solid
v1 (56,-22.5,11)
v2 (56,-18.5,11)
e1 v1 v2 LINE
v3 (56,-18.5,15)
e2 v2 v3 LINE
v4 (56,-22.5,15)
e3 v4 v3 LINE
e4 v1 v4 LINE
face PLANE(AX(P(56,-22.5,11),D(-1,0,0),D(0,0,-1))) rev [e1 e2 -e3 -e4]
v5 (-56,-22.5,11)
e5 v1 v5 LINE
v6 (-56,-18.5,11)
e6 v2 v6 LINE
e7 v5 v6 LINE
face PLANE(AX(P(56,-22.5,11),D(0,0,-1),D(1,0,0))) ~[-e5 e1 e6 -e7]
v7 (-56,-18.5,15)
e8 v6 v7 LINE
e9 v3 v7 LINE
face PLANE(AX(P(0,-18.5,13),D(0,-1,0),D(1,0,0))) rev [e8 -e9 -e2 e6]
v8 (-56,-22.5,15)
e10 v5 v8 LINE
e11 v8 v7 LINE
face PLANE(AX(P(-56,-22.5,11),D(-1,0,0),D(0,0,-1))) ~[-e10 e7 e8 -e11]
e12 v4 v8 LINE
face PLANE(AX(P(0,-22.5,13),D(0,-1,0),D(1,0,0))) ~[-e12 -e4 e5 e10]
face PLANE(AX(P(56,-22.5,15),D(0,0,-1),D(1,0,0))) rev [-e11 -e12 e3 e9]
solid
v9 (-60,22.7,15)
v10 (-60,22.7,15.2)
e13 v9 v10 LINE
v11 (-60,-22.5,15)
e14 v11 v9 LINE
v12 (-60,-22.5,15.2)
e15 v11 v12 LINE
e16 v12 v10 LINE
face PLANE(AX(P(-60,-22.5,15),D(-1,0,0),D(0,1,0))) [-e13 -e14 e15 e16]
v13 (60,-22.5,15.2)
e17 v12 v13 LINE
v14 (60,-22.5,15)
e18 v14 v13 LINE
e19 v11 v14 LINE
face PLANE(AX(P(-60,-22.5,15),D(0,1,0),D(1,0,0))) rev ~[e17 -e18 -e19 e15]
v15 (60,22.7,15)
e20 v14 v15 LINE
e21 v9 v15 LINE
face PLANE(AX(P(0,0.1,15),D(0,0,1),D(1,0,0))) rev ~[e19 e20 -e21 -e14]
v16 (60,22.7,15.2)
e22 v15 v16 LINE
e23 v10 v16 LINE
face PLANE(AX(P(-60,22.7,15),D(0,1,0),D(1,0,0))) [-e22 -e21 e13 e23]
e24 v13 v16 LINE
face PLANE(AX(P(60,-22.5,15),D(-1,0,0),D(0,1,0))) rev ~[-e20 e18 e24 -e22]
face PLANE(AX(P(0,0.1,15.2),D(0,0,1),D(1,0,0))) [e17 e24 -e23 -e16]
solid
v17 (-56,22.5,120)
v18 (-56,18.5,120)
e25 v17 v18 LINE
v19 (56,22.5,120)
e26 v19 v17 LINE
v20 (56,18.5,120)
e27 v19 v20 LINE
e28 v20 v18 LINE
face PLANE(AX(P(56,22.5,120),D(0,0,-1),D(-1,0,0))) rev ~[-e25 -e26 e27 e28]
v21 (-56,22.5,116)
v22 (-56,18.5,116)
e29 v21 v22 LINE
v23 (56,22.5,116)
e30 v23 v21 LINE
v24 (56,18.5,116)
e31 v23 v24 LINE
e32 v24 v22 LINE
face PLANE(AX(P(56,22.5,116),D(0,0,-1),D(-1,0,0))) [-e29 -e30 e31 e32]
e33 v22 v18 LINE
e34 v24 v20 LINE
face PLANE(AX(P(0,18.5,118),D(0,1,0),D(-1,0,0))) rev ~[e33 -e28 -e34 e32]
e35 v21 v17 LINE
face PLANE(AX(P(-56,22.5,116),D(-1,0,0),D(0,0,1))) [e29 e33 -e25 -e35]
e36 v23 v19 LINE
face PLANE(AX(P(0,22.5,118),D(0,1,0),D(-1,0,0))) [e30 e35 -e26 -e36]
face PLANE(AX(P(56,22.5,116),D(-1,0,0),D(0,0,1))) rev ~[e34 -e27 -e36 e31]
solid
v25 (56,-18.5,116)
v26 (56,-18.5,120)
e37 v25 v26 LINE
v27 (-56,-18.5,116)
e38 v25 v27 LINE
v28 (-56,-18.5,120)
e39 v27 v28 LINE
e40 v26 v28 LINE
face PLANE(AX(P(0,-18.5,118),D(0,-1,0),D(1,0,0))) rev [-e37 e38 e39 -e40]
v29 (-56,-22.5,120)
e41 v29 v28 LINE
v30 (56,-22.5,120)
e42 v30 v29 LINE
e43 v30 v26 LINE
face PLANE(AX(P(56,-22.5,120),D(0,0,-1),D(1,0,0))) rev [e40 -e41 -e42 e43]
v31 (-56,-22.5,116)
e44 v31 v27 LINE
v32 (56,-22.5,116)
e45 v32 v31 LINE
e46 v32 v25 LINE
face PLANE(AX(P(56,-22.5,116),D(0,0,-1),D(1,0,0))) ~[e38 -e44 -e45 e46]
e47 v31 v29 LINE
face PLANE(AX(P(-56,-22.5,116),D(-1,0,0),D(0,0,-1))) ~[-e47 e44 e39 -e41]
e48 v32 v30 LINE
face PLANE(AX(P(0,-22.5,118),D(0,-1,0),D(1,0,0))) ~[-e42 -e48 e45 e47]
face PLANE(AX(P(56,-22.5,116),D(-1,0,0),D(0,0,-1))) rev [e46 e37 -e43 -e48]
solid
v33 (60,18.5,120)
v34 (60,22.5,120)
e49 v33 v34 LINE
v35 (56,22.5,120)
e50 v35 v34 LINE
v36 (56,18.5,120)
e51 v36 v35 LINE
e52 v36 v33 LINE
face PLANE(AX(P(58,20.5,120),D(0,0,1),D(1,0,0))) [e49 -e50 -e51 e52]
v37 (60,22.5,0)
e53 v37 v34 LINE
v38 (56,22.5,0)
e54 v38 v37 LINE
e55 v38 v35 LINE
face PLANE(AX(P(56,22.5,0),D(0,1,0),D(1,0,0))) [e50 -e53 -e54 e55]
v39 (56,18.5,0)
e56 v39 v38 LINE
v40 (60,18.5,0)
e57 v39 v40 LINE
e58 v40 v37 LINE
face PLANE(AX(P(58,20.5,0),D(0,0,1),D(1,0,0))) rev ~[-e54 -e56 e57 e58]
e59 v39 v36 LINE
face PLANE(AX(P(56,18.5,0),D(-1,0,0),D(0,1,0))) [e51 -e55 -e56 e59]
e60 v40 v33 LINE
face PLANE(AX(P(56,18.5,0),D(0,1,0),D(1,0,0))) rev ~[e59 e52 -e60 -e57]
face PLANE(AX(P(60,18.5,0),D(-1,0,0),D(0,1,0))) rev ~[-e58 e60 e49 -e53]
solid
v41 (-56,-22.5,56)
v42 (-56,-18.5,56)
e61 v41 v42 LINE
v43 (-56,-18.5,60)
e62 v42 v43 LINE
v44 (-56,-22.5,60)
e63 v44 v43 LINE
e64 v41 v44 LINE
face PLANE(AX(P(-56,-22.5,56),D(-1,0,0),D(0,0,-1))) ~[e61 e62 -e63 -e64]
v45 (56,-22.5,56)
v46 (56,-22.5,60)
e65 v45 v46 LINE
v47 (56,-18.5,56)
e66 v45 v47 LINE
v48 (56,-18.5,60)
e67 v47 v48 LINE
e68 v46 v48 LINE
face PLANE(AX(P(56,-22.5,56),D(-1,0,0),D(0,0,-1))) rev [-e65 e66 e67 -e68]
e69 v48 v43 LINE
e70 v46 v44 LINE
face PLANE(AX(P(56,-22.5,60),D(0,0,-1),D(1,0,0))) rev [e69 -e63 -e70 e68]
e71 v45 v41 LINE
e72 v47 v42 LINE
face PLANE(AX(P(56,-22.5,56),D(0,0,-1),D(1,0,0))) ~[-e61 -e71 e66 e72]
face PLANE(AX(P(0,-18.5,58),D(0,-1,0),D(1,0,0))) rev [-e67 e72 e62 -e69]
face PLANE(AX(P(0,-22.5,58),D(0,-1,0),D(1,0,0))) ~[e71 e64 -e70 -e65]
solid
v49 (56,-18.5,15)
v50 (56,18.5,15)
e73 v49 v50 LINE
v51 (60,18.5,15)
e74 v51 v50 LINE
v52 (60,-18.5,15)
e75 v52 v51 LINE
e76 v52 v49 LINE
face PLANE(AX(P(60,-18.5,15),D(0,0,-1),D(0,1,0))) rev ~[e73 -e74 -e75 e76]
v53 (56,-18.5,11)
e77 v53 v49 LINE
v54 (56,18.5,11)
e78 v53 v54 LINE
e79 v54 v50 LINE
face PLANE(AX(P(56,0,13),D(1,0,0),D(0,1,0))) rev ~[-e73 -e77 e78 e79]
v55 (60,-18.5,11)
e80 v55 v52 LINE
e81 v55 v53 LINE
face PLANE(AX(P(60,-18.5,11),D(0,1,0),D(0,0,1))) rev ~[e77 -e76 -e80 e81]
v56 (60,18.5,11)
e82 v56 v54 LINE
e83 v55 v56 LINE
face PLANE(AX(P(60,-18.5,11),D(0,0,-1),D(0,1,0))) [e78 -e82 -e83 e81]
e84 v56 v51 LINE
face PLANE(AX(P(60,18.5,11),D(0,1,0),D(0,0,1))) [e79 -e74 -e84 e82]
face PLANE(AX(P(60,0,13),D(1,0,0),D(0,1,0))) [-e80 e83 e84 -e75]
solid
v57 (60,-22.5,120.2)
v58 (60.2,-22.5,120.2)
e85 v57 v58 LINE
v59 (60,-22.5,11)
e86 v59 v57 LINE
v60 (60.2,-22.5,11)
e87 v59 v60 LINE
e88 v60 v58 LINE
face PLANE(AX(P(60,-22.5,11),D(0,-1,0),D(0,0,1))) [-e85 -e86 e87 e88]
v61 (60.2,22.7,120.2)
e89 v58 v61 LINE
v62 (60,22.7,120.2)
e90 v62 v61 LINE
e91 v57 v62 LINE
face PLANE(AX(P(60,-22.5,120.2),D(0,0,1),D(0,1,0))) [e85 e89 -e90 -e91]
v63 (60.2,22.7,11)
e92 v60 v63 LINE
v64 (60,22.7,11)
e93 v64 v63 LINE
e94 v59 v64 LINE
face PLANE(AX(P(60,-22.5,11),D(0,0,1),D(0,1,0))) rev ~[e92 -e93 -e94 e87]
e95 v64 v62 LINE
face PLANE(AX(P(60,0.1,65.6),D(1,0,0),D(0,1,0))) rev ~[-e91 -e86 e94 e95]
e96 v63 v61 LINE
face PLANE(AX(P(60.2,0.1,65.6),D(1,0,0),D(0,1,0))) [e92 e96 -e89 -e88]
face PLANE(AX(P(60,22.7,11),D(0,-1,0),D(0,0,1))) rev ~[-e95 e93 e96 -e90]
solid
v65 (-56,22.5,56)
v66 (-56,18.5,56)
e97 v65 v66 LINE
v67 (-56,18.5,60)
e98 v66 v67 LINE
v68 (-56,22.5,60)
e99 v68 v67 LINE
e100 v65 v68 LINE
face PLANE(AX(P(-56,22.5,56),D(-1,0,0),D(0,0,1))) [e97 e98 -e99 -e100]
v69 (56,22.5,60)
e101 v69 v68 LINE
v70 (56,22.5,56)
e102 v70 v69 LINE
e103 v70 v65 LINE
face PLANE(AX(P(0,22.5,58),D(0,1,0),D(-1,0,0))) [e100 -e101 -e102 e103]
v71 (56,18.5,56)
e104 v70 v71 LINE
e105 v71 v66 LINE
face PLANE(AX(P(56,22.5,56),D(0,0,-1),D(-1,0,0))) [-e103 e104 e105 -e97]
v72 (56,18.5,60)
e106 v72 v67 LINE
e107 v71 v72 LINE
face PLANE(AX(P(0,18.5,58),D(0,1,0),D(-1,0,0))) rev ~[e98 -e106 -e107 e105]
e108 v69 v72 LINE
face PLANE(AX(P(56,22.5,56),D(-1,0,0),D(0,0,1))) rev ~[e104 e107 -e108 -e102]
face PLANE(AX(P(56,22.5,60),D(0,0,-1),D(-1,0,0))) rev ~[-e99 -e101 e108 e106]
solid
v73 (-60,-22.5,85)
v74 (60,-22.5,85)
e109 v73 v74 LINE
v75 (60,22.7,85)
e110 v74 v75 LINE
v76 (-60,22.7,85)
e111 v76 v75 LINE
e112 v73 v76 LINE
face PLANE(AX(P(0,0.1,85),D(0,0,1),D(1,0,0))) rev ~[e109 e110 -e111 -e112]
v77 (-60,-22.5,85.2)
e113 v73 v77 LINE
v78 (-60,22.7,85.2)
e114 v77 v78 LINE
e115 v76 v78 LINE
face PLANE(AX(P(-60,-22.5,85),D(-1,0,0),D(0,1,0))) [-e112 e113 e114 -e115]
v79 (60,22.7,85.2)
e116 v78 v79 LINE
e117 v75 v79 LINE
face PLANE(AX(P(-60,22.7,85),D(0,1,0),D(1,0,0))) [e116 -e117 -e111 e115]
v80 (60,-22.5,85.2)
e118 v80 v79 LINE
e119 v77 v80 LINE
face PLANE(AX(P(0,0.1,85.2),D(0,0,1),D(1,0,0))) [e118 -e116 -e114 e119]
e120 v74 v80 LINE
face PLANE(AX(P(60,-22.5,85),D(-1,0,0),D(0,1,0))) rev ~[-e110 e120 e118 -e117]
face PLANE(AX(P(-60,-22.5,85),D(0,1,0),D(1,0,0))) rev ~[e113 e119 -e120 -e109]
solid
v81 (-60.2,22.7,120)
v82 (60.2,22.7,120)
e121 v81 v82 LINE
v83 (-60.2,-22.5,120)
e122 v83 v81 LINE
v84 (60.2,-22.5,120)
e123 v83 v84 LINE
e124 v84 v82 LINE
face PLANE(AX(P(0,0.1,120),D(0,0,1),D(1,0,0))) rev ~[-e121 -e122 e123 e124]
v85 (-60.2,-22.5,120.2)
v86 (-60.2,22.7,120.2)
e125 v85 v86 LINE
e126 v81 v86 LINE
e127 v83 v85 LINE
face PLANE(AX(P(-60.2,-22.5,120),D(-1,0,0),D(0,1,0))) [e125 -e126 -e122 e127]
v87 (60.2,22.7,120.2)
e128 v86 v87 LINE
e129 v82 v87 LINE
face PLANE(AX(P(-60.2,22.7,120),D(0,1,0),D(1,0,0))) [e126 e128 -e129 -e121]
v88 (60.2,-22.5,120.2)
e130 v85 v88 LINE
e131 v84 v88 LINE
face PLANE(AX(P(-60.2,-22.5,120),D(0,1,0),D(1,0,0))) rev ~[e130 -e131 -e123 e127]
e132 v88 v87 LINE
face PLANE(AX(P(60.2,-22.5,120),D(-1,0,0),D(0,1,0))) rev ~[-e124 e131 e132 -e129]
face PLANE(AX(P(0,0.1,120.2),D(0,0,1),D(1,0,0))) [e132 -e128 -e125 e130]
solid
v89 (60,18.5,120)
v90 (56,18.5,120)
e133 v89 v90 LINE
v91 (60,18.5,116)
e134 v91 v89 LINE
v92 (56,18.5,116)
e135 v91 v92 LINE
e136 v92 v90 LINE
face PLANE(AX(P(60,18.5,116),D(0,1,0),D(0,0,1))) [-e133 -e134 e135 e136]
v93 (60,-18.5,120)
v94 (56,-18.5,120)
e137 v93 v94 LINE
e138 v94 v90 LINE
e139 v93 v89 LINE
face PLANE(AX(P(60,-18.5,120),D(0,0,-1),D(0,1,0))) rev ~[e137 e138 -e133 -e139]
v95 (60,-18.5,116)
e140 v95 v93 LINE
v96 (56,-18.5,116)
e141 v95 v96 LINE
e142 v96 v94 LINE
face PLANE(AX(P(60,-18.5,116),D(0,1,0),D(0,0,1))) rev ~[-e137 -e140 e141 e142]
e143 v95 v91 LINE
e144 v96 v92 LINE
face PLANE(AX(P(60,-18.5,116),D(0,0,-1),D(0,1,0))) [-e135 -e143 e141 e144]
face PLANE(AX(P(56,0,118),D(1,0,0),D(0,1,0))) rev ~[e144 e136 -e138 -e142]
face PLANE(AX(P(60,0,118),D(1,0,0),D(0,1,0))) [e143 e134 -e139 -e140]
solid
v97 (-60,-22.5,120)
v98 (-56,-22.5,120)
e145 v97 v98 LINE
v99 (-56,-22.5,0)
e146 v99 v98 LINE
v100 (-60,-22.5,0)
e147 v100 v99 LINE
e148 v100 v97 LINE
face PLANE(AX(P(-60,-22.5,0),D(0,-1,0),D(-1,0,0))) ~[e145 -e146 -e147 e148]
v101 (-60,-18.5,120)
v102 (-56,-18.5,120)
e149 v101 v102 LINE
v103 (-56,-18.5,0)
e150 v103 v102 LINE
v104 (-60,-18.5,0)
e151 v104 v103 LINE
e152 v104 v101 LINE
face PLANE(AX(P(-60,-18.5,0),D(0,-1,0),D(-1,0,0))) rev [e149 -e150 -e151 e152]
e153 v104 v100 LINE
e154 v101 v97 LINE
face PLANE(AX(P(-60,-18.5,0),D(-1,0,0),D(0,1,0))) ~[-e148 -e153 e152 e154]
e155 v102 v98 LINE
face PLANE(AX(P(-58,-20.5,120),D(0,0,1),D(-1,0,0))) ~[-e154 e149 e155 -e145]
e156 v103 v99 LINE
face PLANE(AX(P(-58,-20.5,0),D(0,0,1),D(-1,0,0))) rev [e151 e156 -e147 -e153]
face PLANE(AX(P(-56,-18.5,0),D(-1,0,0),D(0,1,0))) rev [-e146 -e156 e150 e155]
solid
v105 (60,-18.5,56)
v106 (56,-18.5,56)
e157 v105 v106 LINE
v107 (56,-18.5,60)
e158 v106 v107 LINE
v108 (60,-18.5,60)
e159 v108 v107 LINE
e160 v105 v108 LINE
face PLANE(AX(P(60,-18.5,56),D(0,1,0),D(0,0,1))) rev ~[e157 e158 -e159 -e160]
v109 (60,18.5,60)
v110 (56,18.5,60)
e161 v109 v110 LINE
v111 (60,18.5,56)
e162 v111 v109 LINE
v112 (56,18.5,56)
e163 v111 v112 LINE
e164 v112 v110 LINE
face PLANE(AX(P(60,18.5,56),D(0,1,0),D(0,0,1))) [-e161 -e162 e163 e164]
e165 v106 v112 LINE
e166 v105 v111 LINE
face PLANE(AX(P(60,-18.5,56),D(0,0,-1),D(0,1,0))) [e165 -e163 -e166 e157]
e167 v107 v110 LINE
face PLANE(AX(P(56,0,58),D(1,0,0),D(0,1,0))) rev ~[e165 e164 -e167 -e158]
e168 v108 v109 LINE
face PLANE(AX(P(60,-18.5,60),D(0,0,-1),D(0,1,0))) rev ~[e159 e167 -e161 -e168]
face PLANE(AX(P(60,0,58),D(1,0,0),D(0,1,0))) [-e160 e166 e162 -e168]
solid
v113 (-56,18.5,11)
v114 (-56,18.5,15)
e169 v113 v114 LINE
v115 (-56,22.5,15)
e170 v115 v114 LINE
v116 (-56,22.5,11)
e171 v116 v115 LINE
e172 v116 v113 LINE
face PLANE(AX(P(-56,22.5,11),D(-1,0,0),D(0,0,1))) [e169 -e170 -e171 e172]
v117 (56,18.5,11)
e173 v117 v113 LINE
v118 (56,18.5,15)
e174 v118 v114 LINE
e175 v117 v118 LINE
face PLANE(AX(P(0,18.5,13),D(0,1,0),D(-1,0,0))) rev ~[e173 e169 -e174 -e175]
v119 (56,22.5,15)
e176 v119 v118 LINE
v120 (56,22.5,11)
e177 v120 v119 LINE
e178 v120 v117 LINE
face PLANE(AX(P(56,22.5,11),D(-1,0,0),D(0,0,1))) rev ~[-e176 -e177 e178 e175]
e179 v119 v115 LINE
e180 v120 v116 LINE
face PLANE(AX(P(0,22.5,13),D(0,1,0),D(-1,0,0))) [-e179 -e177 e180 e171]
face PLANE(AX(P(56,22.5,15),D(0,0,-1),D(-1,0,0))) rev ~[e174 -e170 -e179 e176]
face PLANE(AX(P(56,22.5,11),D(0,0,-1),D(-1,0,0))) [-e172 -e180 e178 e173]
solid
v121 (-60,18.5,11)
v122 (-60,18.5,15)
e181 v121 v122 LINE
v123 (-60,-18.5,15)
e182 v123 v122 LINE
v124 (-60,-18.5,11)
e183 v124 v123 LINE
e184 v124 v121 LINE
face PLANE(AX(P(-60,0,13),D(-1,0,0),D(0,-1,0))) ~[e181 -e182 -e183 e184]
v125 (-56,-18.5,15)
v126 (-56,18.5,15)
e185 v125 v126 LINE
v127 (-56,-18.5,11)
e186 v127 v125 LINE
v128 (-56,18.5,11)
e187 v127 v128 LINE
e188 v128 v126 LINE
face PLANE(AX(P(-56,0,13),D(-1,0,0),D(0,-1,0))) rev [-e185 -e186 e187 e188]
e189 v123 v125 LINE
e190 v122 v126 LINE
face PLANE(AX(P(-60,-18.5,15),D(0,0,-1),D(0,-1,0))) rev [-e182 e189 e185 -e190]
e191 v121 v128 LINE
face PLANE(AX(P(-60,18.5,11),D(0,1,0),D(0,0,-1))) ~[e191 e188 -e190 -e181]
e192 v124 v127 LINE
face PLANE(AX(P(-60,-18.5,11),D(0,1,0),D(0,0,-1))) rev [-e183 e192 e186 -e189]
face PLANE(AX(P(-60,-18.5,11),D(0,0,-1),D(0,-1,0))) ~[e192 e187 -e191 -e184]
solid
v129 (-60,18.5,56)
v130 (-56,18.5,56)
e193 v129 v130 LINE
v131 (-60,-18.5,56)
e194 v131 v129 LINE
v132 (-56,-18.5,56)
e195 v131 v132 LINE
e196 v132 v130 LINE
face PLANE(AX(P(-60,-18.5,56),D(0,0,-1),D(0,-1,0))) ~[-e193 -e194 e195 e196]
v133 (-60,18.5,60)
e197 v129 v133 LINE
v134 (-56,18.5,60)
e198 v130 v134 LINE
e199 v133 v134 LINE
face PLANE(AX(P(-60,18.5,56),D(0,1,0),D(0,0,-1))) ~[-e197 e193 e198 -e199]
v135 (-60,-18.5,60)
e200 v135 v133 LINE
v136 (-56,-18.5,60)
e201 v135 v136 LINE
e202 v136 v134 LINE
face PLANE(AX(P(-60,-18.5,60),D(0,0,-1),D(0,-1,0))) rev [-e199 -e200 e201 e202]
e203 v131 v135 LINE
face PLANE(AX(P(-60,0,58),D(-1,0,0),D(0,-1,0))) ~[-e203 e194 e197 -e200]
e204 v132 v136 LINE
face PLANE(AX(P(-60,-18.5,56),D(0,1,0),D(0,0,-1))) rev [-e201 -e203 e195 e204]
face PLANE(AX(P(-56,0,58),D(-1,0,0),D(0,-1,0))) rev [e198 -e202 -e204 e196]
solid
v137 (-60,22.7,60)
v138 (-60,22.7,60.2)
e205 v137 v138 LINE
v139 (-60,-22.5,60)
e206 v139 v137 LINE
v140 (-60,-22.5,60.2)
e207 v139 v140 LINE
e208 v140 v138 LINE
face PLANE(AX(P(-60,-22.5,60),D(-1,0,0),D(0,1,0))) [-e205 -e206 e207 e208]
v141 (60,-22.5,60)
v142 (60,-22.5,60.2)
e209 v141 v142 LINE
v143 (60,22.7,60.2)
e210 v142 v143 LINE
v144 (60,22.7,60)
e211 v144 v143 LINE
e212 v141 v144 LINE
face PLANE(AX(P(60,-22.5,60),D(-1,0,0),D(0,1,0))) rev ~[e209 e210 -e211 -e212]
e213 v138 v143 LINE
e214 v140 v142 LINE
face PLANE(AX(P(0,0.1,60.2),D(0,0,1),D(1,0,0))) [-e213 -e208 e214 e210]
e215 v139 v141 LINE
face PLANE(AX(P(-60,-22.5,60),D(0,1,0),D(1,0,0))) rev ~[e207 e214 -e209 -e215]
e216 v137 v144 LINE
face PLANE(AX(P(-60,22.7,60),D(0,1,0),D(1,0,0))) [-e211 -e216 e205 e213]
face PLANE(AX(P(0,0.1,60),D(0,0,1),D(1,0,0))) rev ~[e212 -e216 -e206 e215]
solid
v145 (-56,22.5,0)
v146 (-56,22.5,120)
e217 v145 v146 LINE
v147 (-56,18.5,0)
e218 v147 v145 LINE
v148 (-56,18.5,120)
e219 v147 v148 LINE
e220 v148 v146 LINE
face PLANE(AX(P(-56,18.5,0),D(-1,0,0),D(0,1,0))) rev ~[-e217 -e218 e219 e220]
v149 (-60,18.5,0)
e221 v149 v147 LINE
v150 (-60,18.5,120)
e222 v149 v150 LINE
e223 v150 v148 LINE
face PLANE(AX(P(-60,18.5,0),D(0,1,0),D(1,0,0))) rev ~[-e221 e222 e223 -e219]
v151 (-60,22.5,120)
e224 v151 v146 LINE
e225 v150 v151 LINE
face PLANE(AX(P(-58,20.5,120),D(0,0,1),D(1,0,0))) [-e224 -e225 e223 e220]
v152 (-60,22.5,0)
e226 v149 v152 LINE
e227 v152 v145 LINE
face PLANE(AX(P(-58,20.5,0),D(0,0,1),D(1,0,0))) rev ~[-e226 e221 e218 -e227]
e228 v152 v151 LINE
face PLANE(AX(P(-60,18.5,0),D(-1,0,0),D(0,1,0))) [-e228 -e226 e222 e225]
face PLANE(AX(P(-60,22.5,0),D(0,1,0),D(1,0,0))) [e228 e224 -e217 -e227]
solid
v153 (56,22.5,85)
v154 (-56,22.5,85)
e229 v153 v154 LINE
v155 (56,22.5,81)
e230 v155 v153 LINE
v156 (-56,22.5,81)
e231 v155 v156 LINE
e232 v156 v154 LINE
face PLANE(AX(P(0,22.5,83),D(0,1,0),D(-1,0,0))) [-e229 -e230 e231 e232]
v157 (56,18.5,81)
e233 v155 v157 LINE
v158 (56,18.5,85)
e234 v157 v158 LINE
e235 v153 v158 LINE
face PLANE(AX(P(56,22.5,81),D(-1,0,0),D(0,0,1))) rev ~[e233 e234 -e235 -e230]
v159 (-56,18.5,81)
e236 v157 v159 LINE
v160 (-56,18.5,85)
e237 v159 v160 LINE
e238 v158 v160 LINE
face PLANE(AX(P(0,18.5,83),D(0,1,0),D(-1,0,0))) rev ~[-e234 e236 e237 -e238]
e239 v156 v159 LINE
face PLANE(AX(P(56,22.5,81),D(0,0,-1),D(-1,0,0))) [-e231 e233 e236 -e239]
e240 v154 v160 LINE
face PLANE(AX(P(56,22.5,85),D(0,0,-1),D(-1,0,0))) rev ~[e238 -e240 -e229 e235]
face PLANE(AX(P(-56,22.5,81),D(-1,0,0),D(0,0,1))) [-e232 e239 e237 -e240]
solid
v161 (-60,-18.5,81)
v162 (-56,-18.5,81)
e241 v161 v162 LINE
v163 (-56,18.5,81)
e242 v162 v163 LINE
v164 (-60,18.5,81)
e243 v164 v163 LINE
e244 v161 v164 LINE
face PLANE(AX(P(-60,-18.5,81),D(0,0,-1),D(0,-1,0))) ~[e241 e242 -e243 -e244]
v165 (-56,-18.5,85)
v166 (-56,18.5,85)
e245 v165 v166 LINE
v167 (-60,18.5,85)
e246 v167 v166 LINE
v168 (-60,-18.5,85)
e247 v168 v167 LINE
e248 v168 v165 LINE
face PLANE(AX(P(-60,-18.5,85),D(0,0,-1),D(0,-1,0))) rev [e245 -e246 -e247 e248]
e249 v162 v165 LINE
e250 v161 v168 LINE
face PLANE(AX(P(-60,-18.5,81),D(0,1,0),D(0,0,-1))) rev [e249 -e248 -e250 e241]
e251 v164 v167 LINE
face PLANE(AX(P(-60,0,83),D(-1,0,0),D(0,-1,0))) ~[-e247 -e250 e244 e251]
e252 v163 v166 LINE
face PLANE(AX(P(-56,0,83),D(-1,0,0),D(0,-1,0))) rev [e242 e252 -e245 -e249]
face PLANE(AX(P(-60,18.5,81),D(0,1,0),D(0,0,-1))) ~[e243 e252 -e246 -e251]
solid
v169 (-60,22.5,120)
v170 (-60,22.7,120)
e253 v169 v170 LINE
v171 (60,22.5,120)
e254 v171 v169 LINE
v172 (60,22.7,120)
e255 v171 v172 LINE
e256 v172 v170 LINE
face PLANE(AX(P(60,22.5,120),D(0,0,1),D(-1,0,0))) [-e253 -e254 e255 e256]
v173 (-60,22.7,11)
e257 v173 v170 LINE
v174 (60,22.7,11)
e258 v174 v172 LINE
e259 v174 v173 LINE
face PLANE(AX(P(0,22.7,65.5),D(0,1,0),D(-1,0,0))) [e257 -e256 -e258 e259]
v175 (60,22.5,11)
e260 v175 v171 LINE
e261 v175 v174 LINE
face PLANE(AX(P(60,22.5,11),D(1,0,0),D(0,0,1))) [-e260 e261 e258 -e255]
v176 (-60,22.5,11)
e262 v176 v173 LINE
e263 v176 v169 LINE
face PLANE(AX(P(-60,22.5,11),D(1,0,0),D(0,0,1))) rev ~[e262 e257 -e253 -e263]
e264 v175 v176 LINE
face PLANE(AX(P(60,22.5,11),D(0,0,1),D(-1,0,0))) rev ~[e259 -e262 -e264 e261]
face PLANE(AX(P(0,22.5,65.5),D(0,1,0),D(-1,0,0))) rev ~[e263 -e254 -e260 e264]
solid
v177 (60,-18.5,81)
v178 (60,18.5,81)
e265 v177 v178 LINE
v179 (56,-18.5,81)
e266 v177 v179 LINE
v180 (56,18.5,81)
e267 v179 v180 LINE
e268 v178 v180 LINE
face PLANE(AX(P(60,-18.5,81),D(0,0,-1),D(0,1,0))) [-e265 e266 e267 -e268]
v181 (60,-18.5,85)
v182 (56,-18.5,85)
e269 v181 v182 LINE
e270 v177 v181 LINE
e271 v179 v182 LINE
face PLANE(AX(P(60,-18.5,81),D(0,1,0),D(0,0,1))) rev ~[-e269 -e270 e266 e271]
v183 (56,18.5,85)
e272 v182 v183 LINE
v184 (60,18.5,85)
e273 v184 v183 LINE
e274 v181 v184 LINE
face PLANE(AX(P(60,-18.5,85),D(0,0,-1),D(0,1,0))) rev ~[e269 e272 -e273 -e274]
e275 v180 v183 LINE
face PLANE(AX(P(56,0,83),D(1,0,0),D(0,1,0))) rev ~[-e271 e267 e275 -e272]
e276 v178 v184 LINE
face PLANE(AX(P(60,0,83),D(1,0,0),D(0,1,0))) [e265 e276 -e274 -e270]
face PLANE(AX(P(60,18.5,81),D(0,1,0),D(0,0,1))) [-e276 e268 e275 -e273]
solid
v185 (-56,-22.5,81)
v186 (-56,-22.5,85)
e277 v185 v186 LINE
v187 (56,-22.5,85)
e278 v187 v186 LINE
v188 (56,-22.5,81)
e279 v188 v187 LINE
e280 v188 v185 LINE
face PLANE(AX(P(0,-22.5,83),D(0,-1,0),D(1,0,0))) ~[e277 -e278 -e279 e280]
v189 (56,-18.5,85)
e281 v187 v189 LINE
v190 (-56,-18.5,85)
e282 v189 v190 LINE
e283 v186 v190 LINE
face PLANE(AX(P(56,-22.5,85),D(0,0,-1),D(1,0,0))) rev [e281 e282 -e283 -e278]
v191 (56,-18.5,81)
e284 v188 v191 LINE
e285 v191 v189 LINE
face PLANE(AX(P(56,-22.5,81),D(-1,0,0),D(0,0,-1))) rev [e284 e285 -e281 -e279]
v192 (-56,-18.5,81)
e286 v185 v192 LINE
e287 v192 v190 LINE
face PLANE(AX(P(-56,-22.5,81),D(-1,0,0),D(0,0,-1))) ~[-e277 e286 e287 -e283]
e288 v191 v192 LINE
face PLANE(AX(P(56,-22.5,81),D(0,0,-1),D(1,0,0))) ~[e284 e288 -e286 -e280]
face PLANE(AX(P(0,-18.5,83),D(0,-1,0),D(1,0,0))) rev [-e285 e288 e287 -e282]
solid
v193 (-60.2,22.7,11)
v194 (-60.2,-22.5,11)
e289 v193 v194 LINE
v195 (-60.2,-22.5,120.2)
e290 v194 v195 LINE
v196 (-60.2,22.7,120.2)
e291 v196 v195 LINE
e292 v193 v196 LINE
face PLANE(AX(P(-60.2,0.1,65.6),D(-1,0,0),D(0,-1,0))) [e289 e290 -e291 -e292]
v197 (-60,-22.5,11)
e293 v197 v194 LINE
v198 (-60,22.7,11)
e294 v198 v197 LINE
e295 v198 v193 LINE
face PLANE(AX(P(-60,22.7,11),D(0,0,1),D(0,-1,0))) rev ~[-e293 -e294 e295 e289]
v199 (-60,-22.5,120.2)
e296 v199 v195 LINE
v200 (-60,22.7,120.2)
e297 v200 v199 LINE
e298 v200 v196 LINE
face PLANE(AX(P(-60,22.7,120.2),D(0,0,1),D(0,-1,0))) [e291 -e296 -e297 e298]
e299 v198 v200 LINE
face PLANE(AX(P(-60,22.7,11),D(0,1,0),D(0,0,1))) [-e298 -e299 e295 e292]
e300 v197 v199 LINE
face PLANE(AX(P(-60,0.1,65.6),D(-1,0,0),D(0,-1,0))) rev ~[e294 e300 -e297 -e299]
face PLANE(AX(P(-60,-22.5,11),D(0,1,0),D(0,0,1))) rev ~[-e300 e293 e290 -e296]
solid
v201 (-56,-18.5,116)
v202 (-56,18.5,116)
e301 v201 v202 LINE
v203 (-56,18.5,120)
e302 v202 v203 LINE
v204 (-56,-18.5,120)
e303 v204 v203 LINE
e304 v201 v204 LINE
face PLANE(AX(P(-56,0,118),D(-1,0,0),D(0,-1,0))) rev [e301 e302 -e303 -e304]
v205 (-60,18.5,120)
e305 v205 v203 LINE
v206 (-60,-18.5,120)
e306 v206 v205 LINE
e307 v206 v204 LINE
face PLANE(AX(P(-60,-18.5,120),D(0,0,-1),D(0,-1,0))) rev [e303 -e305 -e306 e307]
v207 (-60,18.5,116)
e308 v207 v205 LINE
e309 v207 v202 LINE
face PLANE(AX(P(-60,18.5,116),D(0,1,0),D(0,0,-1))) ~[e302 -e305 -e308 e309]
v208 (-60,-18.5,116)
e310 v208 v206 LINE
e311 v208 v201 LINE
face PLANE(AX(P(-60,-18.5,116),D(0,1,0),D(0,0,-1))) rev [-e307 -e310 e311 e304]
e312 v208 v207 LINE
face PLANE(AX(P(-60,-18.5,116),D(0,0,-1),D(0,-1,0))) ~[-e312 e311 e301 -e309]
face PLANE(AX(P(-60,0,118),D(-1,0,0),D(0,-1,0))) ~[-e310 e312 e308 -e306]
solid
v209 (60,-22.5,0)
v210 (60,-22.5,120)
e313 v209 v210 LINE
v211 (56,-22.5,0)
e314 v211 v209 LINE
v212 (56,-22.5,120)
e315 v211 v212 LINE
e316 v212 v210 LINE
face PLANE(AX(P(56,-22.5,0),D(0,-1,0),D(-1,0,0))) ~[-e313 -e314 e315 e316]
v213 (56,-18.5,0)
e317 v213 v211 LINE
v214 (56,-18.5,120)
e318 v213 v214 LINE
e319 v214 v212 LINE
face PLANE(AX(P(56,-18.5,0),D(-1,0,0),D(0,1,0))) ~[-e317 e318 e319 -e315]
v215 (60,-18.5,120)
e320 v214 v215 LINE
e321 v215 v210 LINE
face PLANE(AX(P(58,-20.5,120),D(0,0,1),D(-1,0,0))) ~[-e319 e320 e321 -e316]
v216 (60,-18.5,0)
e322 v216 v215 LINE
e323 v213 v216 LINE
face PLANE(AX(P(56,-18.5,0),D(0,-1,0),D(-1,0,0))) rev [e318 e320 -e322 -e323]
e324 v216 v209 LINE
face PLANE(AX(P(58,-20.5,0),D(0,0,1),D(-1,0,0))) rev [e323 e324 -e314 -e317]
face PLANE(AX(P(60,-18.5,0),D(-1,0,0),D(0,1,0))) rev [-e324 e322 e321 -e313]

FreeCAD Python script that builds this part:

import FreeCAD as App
import Part
import Sketcher
from FreeCAD import Vector
Q = App.Units.Quantity

doc = App.newDocument("Part")
body = doc.addObject("PartDesign::Body", "Body")
body.AllowCompound = True

# Sketch on XY plane
sketch1 = body.newObject("Sketcher::SketchObject", "Sketch")
sketch1.AttachmentSupport = (doc.getObject("XY_Plane"), [""])
sketch1.MapMode = "FlatFace"
sketch1.addGeometry(Part.LineSegment(Vector(-60, 22.5, 0), Vector(-60, 18.5, 0)), False)
sketch1.addGeometry(Part.LineSegment(Vector(-60, 18.5, 0), Vector(-56, 18.5, 0)), False)
sketch1.addGeometry(Part.LineSegment(Vector(-56, 18.5, 0), Vector(-56, 22.5, 0)), False)
sketch1.addGeometry(Part.LineSegment(Vector(-56, 22.5, 0), Vector(-60, 22.5, 0)), False)
sketch1.addGeometry(Part.LineSegment(Vector(56, 22.5, 0), Vector(56, 18.5, 0)), False)
sketch1.addGeometry(Part.LineSegment(Vector(56, 18.5, 0), Vector(60, 18.5, 0)), False)
sketch1.addGeometry(Part.LineSegment(Vector(60, 18.5, 0), Vector(60, 22.5, 0)), False)
sketch1.addGeometry(Part.LineSegment(Vector(60, 22.5, 0), Vector(56, 22.5, 0)), False)
sketch1.addConstraint(Sketcher.Constraint("Coincident", 0, 2, 1, 1))
sketch1.addConstraint(Sketcher.Constraint("Coincident", 1, 2, 2, 1))
sketch1.addConstraint(Sketcher.Constraint("Coincident", 2, 2, 3, 1))
sketch1.addConstraint(Sketcher.Constraint("Coincident", 3, 2, 0, 1))
sketch1.addConstraint(Sketcher.Constraint("Coincident", 4, 2, 5, 1))
sketch1.addConstraint(Sketcher.Constraint("Coincident", 5, 2, 6, 1))
sketch1.addConstraint(Sketcher.Constraint("Coincident", 6, 2, 7, 1))
sketch1.addConstraint(Sketcher.Constraint("Coincident", 7, 2, 4, 1))
sketch1.addConstraint(Sketcher.Constraint("Vertical", 0))
sketch1.addConstraint(Sketcher.Constraint("Horizontal", 1))
sketch1.addConstraint(Sketcher.Constraint("Vertical", 2))
sketch1.addConstraint(Sketcher.Constraint("Horizontal", 3))
sketch1.addConstraint(Sketcher.Constraint("Vertical", 4))
sketch1.addConstraint(Sketcher.Constraint("Horizontal", 5))
sketch1.addConstraint(Sketcher.Constraint("Vertical", 6))
sketch1.addConstraint(Sketcher.Constraint("Horizontal", 7))
sketch1.addConstraint(Sketcher.Constraint("Symmetric", 1, 2, 4, 2, -2))
sketch1.addConstraint(Sketcher.Constraint("Symmetric", 3, 2, 6, 2, -2))
sketch1.addConstraint(Sketcher.Constraint("Equal", 7, 0))
sketch1.addConstraint(Sketcher.Constraint("DistanceX", 1, 1, 1, 2, Q("4 mm")))
sketch1.addConstraint(Sketcher.Constraint("DistanceX", 0, 2, -1, 1, Q("60 mm")))
sketch1.addConstraint(Sketcher.Constraint("DistanceY", -1, 1, 0, 2, Q("18.5 mm")))
pad1 = body.newObject("PartDesign::Pad", "Pad")
pad1.Profile = sketch1
pad1.Length = 120
body2 = doc.addObject("PartDesign::Body", "Body001")
body2.AllowCompound = True

# Sketch on XZ plane
sketch2 = body2.newObject("Sketcher::SketchObject", "Sketch001")
sketch2.AttachmentSupport = (doc.getObject("XZ_Plane001"), [""])
sketch2.MapMode = "FlatFace"
sketch2.AttachmentOffset = App.Placement(Vector(0, 0, -22.5), App.Rotation())
sketch2.addGeometry(Part.LineSegment(Vector(56, 120, 0), Vector(56, 116, 0)), False)
sketch2.addGeometry(Part.LineSegment(Vector(56, 116, 0), Vector(-56, 116, 0)), False)
sketch2.addGeometry(Part.LineSegment(Vector(-56, 116, 0), Vector(-56, 120, 0)), False)
sketch2.addGeometry(Part.LineSegment(Vector(-56, 120, 0), Vector(56, 120, 0)), False)
sketch2.addGeometry(Part.LineSegment(Vector(56, 85, 0), Vector(56, 81, 0)), False)
sketch2.addGeometry(Part.LineSegment(Vector(56, 81, 0), Vector(-56, 81, 0)), False)
sketch2.addGeometry(Part.LineSegment(Vector(-56, 81, 0), Vector(-56, 85, 0)), False)
sketch2.addGeometry(Part.LineSegment(Vector(-56, 85, 0), Vector(56, 85, 0)), False)
sketch2.addGeometry(Part.LineSegment(Vector(56, 60, 0), Vector(56, 56, 0)), False)
sketch2.addGeometry(Part.LineSegment(Vector(56, 56, 0), Vector(-56, 56, 0)), False)
sketch2.addGeometry(Part.LineSegment(Vector(-56, 56, 0), Vector(-56, 60, 0)), False)
sketch2.addGeometry(Part.LineSegment(Vector(-56, 60, 0), Vector(56, 60, 0)), False)
sketch2.addGeometry(Part.LineSegment(Vector(56, 15, 0), Vector(56, 11, 0)), False)
sketch2.addGeometry(Part.LineSegment(Vector(56, 11, 0), Vector(-56, 11, 0)), False)
sketch2.addGeometry(Part.LineSegment(Vector(-56, 11, 0), Vector(-56, 15, 0)), False)
sketch2.addGeometry(Part.LineSegment(Vector(-56, 15, 0), Vector(56, 15, 0)), False)
sketch2.addConstraint(Sketcher.Constraint("Coincident", 0, 2, 1, 1))
sketch2.addConstraint(Sketcher.Constraint("Coincident", 1, 2, 2, 1))
sketch2.addConstraint(Sketcher.Constraint("Coincident", 2, 2, 3, 1))
sketch2.addConstraint(Sketcher.Constraint("Coincident", 3, 2, 0, 1))
sketch2.addConstraint(Sketcher.Constraint("Coincident", 4, 2, 5, 1))
sketch2.addConstraint(Sketcher.Constraint("Coincident", 5, 2, 6, 1))
sketch2.addConstraint(Sketcher.Constraint("Coincident", 6, 2, 7, 1))
sketch2.addConstraint(Sketcher.Constraint("Coincident", 7, 2, 4, 1))
sketch2.addConstraint(Sketcher.Constraint("Coincident", 8, 2, 9, 1))
sketch2.addConstraint(Sketcher.Constraint("Coincident", 9, 2, 10, 1))
sketch2.addConstraint(Sketcher.Constraint("Coincident", 10, 2, 11, 1))
sketch2.addConstraint(Sketcher.Constraint("Coincident", 11, 2, 8, 1))
sketch2.addConstraint(Sketcher.Constraint("Coincident", 12, 2, 13, 1))
sketch2.addConstraint(Sketcher.Constraint("Coincident", 13, 2, 14, 1))
sketch2.addConstraint(Sketcher.Constraint("Coincident", 14, 2, 15, 1))
sketch2.addConstraint(Sketcher.Constraint("Coincident", 15, 2, 12, 1))
sketch2.addConstraint(Sketcher.Constraint("Vertical", 0))
sketch2.addConstraint(Sketcher.Constraint("Horizontal", 1))
sketch2.addConstraint(Sketcher.Constraint("Vertical", 2))
sketch2.addConstraint(Sketcher.Constraint("Horizontal", 3))
sketch2.addConstraint(Sketcher.Constraint("Vertical", 4))
sketch2.addConstraint(Sketcher.Constraint("Horizontal", 5))
sketch2.addConstraint(Sketcher.Constraint("Vertical", 6))
sketch2.addConstraint(Sketcher.Constraint("Horizontal", 7))
sketch2.addConstraint(Sketcher.Constraint("Vertical", 8))
sketch2.addConstraint(Sketcher.Constraint("Horizontal", 9))
sketch2.addConstraint(Sketcher.Constraint("Vertical", 10))
sketch2.addConstraint(Sketcher.Constraint("Horizontal", 11))
sketch2.addConstraint(Sketcher.Constraint("Vertical", 12))
sketch2.addConstraint(Sketcher.Constraint("Horizontal", 13))
sketch2.addConstraint(Sketcher.Constraint("Vertical", 14))
sketch2.addConstraint(Sketcher.Constraint("Horizontal", 15))
sketch2.addConstraint(Sketcher.Constraint("Vertical", 3, 2, 4, 2))
sketch2.addConstraint(Sketcher.Constraint("Vertical", 2, 2, 5, 2))
sketch2.addConstraint(Sketcher.Constraint("Vertical", 7, 2, 8, 2))
sketch2.addConstraint(Sketcher.Constraint("Vertical", 6, 2, 9, 2))
sketch2.addConstraint(Sketcher.Constraint("Vertical", 11, 2, 12, 2))
sketch2.addConstraint(Sketcher.Constraint("Vertical", 10, 2, 13, 2))
sketch2.addConstraint(Sketcher.Constraint("Equal", 2, 4))
sketch2.addConstraint(Sketcher.Constraint("Equal", 6, 8))
sketch2.addConstraint(Sketcher.Constraint("Equal", 10, 12))
sketch2.addConstraint(Sketcher.Constraint("DistanceX", 1, 2, 1, 1, Q("112 mm")))
sketch2.addConstraint(Sketcher.Constraint("DistanceY", 0, 2, 0, 1, Q("4 mm")))
sketch2.addConstraint(Sketcher.Constraint("DistanceX", -1, 1, 0, 2, Q("56 mm")))
sketch2.addConstraint(Sketcher.Constraint("DistanceY", -1, 1, 0, 2, Q("116 mm")))
sketch2.addConstraint(Sketcher.Constraint("DistanceY", -1, 1, 4, 2, Q("81 mm")))
sketch2.addConstraint(Sketcher.Constraint("DistanceY", -1, 1, 8, 2, Q("56 mm")))
sketch2.addConstraint(Sketcher.Constraint("DistanceY", -1, 1, 12, 2, Q("11 mm")))
pad2 = body2.newObject("PartDesign::Pad", "Pad001")
pad2.Profile = sketch2
pad2.Length = 4
body3 = doc.addObject("PartDesign::Body", "Body002")
body3.AllowCompound = True
doc.recompute()

mirroring = doc.addObject("Part::Mirroring", "Mirroring")
mirroring.Source = body
mirroring.Base = Vector(0, 0, 0)
mirroring.Normal = Vector(0, -1, 0)
body3.BaseFeature = mirroring
doc.recompute()
body4 = doc.addObject("PartDesign::Body", "Body003")
body4.AllowCompound = True
doc.recompute()

mirroring2 = doc.addObject("Part::Mirroring", "Mirroring001")
mirroring2.Source = body2
mirroring2.Base = Vector(0, 0, 0)
mirroring2.Normal = Vector(0, -1, 0)
body4.BaseFeature = mirroring2
doc.recompute()
body5 = doc.addObject("PartDesign::Body", "Body004")
body5.AllowCompound = True

# Sketch on YZ plane
sketch3 = body5.newObject("Sketcher::SketchObject", "Sketch002")
sketch3.AttachmentSupport = (doc.getObject("YZ_Plane004"), [""])
sketch3.MapMode = "FlatFace"
sketch3.AttachmentOffset = App.Placement(Vector(0, 0, 60), App.Rotation())
sketch3.addGeometry(Part.LineSegment(Vector(-18.5, 120, 0), Vector(-18.5, 116, 0)), False)
sketch3.addGeometry(Part.LineSegment(Vector(-18.5, 116, 0), Vector(18.5, 116, 0)), False)
sketch3.addGeometry(Part.LineSegment(Vector(18.5, 116, 0), Vector(18.5, 120, 0)), False)
sketch3.addGeometry(Part.LineSegment(Vector(18.5, 120, 0), Vector(-18.5, 120, 0)), False)
sketch3.addGeometry(Part.LineSegment(Vector(-18.5, 85, 0), Vector(-18.5, 81, 0)), False)
sketch3.addGeometry(Part.LineSegment(Vector(-18.5, 81, 0), Vector(18.5, 81, 0)), False)
sketch3.addGeometry(Part.LineSegment(Vector(18.5, 81, 0), Vector(18.5, 85, 0)), False)
sketch3.addGeometry(Part.LineSegment(Vector(18.5, 85, 0), Vector(-18.5, 85, 0)), False)
sketch3.addGeometry(Part.LineSegment(Vector(-18.5, 60, 0), Vector(-18.5, 56, 0)), False)
sketch3.addGeometry(Part.LineSegment(Vector(-18.5, 56, 0), Vector(18.5, 56, 0)), False)
sketch3.addGeometry(Part.LineSegment(Vector(18.5, 56, 0), Vector(18.5, 60, 0)), False)
sketch3.addGeometry(Part.LineSegment(Vector(18.5, 60, 0), Vector(-18.5, 60, 0)), False)
sketch3.addGeometry(Part.LineSegment(Vector(-18.5, 15, 0), Vector(-18.5, 11, 0)), False)
sketch3.addGeometry(Part.LineSegment(Vector(-18.5, 11, 0), Vector(18.5, 11, 0)), False)
sketch3.addGeometry(Part.LineSegment(Vector(18.5, 11, 0), Vector(18.5, 15, 0)), False)
sketch3.addGeometry(Part.LineSegment(Vector(18.5, 15, 0), Vector(-18.5, 15, 0)), False)
sketch3.addConstraint(Sketcher.Constraint("Coincident", 0, 2, 1, 1))
sketch3.addConstraint(Sketcher.Constraint("Coincident", 1, 2, 2, 1))
sketch3.addConstraint(Sketcher.Constraint("Coincident", 2, 2, 3, 1))
sketch3.addConstraint(Sketcher.Constraint("Coincident", 3, 2, 0, 1))
sketch3.addConstraint(Sketcher.Constraint("Coincident", 4, 2, 5, 1))
sketch3.addConstraint(Sketcher.Constraint("Coincident", 5, 2, 6, 1))
sketch3.addConstraint(Sketcher.Constraint("Coincident", 6, 2, 7, 1))
sketch3.addConstraint(Sketcher.Constraint("Coincident", 7, 2, 4, 1))
sketch3.addConstraint(Sketcher.Constraint("Coincident", 8, 2, 9, 1))
sketch3.addConstraint(Sketcher.Constraint("Coincident", 9, 2, 10, 1))
sketch3.addConstraint(Sketcher.Constraint("Coincident", 10, 2, 11, 1))
sketch3.addConstraint(Sketcher.Constraint("Coincident", 11, 2, 8, 1))
sketch3.addConstraint(Sketcher.Constraint("Coincident", 12, 2, 13, 1))
sketch3.addConstraint(Sketcher.Constraint("Coincident", 13, 2, 14, 1))
sketch3.addConstraint(Sketcher.Constraint("Coincident", 14, 2, 15, 1))
sketch3.addConstraint(Sketcher.Constraint("Coincident", 15, 2, 12, 1))
sketch3.addConstraint(Sketcher.Constraint("Vertical", 0))
sketch3.addConstraint(Sketcher.Constraint("Horizontal", 1))
sketch3.addConstraint(Sketcher.Constraint("Vertical", 2))
sketch3.addConstraint(Sketcher.Constraint("Horizontal", 3))
sketch3.addConstraint(Sketcher.Constraint("Vertical", 4))
sketch3.addConstraint(Sketcher.Constraint("Horizontal", 5))
sketch3.addConstraint(Sketcher.Constraint("Vertical", 6))
sketch3.addConstraint(Sketcher.Constraint("Horizontal", 7))
sketch3.addConstraint(Sketcher.Constraint("Vertical", 8))
sketch3.addConstraint(Sketcher.Constraint("Horizontal", 9))
sketch3.addConstraint(Sketcher.Constraint("Vertical", 10))
sketch3.addConstraint(Sketcher.Constraint("Horizontal", 11))
sketch3.addConstraint(Sketcher.Constraint("Vertical", 12))
sketch3.addConstraint(Sketcher.Constraint("Horizontal", 13))
sketch3.addConstraint(Sketcher.Constraint("Vertical", 14))
sketch3.addConstraint(Sketcher.Constraint("Horizontal", 15))
sketch3.addConstraint(Sketcher.Constraint("Vertical", 3, 2, 4, 2))
sketch3.addConstraint(Sketcher.Constraint("Vertical", 2, 2, 5, 2))
sketch3.addConstraint(Sketcher.Constraint("Vertical", 7, 2, 8, 2))
sketch3.addConstraint(Sketcher.Constraint("Vertical", 6, 2, 9, 2))
sketch3.addConstraint(Sketcher.Constraint("Vertical", 11, 2, 12, 2))
sketch3.addConstraint(Sketcher.Constraint("Vertical", 10, 2, 13, 2))
sketch3.addConstraint(Sketcher.Constraint("Equal", 2, 4))
sketch3.addConstraint(Sketcher.Constraint("Equal", 6, 8))
sketch3.addConstraint(Sketcher.Constraint("Equal", 10, 12))
sketch3.addConstraint(Sketcher.Constraint("DistanceX", 1, 1, 1, 2, Q("37 mm")))
sketch3.addConstraint(Sketcher.Constraint("DistanceY", 0, 2, 0, 1, Q("4 mm")))
sketch3.addConstraint(Sketcher.Constraint("DistanceY", -1, 1, 0, 2, Q("116 mm")))
sketch3.addConstraint(Sketcher.Constraint("DistanceY", -1, 1, 4, 2, Q("81 mm")))
sketch3.addConstraint(Sketcher.Constraint("DistanceY", -1, 1, 8, 2, Q("56 mm")))
sketch3.addConstraint(Sketcher.Constraint("DistanceY", -1, 1, 12, 2, Q("11 mm")))
sketch3.addConstraint(Sketcher.Constraint("DistanceX", 0, 2, -1, 1, Q("18.5 mm")))
pad3 = body5.newObject("PartDesign::Pad", "Pad002")
pad3.Profile = sketch3
pad3.Length = 4
pad3.Reversed = True
body6 = doc.addObject("PartDesign::Body", "Body005")
body6.AllowCompound = True
doc.recompute()

mirroring3 = doc.addObject("Part::Mirroring", "Mirroring002")
mirroring3.Source = body5
mirroring3.Base = Vector(0, 0, 0)
mirroring3.Normal = Vector(1, 0, 0)
body6.BaseFeature = mirroring3
doc.recompute()
body7 = doc.addObject("PartDesign::Body", "Body006")

# Sketch on XZ plane
sketch4 = body7.newObject("Sketcher::SketchObject", "Sketch003")
sketch4.AttachmentSupport = (doc.getObject("XZ_Plane006"), [""])
sketch4.MapMode = "FlatFace"
sketch4.AttachmentOffset = App.Placement(Vector(0, 0, -22.5), App.Rotation())
sketch4.addGeometry(Part.LineSegment(Vector(60, 120, 0), Vector(60, 11, 0)), False)
sketch4.addGeometry(Part.LineSegment(Vector(60, 11, 0), Vector(-60, 11, 0)), False)
sketch4.addGeometry(Part.LineSegment(Vector(-60, 11, 0), Vector(-60, 120, 0)), False)
sketch4.addGeometry(Part.LineSegment(Vector(-60, 120, 0), Vector(60, 120, 0)), False)
sketch4.addConstraint(Sketcher.Constraint("Coincident", 0, 2, 1, 1))
sketch4.addConstraint(Sketcher.Constraint("Coincident", 1, 2, 2, 1))
sketch4.addConstraint(Sketcher.Constraint("Coincident", 2, 2, 3, 1))
sketch4.addConstraint(Sketcher.Constraint("Coincident", 3, 2, 0, 1))
sketch4.addConstraint(Sketcher.Constraint("Vertical", 0))
sketch4.addConstraint(Sketcher.Constraint("Horizontal", 1))
sketch4.addConstraint(Sketcher.Constraint("Vertical", 2))
sketch4.addConstraint(Sketcher.Constraint("Horizontal", 3))
sketch4.addConstraint(Sketcher.Constraint("DistanceX", 1, 2, 1, 1, Q("120 mm")))
sketch4.addConstraint(Sketcher.Constraint("DistanceY", 0, 2, 0, 1, Q("109 mm")))
sketch4.addConstraint(Sketcher.Constraint("DistanceX", -1, 1, 0, 2, Q("60 mm")))
sketch4.addConstraint(Sketcher.Constraint("DistanceY", -1, 1, 0, 2, Q("11 mm")))
pad4 = body7.newObject("PartDesign::Pad", "Pad003")
pad4.Profile = sketch4
pad4.Length = 0.2
pad4.Reversed = True
body8 = doc.addObject("PartDesign::Body", "Body007")

# Sketch on YZ plane
sketch5 = body8.newObject("Sketcher::SketchObject", "Sketch004")
sketch5.AttachmentSupport = (doc.getObject("YZ_Plane007"), [""])
sketch5.MapMode = "FlatFace"
sketch5.AttachmentOffset = App.Placement(Vector(0, 0, -60), App.Rotation())
sketch5.addGeometry(Part.LineSegment(Vector(22.7, 120.2, 0), Vector(22.7, 11, 0)), False)
sketch5.addGeometry(Part.LineSegment(Vector(22.7, 11, 0), Vector(-22.5, 11, 0)), False)
sketch5.addGeometry(Part.LineSegment(Vector(-22.5, 11, 0), Vector(-22.5, 120.2, 0)), False)
sketch5.addGeometry(Part.LineSegment(Vector(-22.5, 120.2, 0), Vector(22.7, 120.2, 0)), False)
sketch5.addConstraint(Sketcher.Constraint("Coincident", 0, 2, 1, 1))
sketch5.addConstraint(Sketcher.Constraint("Coincident", 1, 2, 2, 1))
sketch5.addConstraint(Sketcher.Constraint("Coincident", 2, 2, 3, 1))
sketch5.addConstraint(Sketcher.Constraint("Coincident", 3, 2, 0, 1))
sketch5.addConstraint(Sketcher.Constraint("Vertical", 0))
sketch5.addConstraint(Sketcher.Constraint("Horizontal", 1))
sketch5.addConstraint(Sketcher.Constraint("Vertical", 2))
sketch5.addConstraint(Sketcher.Constraint("Horizontal", 3))
sketch5.addConstraint(Sketcher.Constraint("DistanceX", 1, 2, 1, 1, Q("45.2 mm")))
sketch5.addConstraint(Sketcher.Constraint("DistanceY", 0, 2, 0, 1, Q("109.2 mm")))
sketch5.addConstraint(Sketcher.Constraint("DistanceY", -1, 1, 0, 2, Q("11 mm")))
sketch5.addConstraint(Sketcher.Constraint("DistanceX", -1, 1, 0, 2, Q("22.7 mm")))
pad5 = body8.newObject("PartDesign::Pad", "Pad004")
pad5.Profile = sketch5
pad5.Length = 0.2
pad5.Reversed = True
body9 = doc.addObject("PartDesign::Body", "Body008")

# Sketch on XY plane
sketch6 = body9.newObject("Sketcher::SketchObject", "Sketch005")
sketch6.AttachmentSupport = (doc.getObject("XY_Plane008"), [""])
sketch6.MapMode = "FlatFace"
sketch6.AttachmentOffset = App.Placement(Vector(0, 0, 120), App.Rotation())
sketch6.addGeometry(Part.LineSegment(Vector(-60.2, 22.7, 0), Vector(-60.2, -22.5, 0)), False)
sketch6.addGeometry(Part.LineSegment(Vector(-60.2, -22.5, 0), Vector(60.2, -22.5, 0)), False)
sketch6.addGeometry(Part.LineSegment(Vector(60.2, -22.5, 0), Vector(60.2, 22.7, 0)), False)
sketch6.addGeometry(Part.LineSegment(Vector(60.2, 22.7, 0), Vector(-60.2, 22.7, 0)), False)
sketch6.addConstraint(Sketcher.Constraint("Coincident", 0, 2, 1, 1))
sketch6.addConstraint(Sketcher.Constraint("Coincident", 1, 2, 2, 1))
sketch6.addConstraint(Sketcher.Constraint("Coincident", 2, 2, 3, 1))
sketch6.addConstraint(Sketcher.Constraint("Coincident", 3, 2, 0, 1))
sketch6.addConstraint(Sketcher.Constraint("Vertical", 0))
sketch6.addConstraint(Sketcher.Constraint("Horizontal", 1))
sketch6.addConstraint(Sketcher.Constraint("Vertical", 2))
sketch6.addConstraint(Sketcher.Constraint("Horizontal", 3))
sketch6.addConstraint(Sketcher.Constraint("DistanceX", 1, 1, 1, 2, Q("120.4 mm")))
sketch6.addConstraint(Sketcher.Constraint("DistanceY", 0, 2, 0, 1, Q("45.2 mm")))
sketch6.addConstraint(Sketcher.Constraint("DistanceX", 0, 2, -1, 1, Q("60.2 mm")))
sketch6.addConstraint(Sketcher.Constraint("DistanceY", 0, 2, -1, 1, Q("22.5 mm")))
pad6 = body9.newObject("PartDesign::Pad", "Pad005")
pad6.Profile = sketch6
pad6.Length = 0.2
body10 = doc.addObject("PartDesign::Body", "Body009")

# Sketch on YZ plane
sketch7 = body10.newObject("Sketcher::SketchObject", "Sketch006")
sketch7.AttachmentSupport = (doc.getObject("YZ_Plane009"), [""])
sketch7.MapMode = "FlatFace"
sketch7.AttachmentOffset = App.Placement(Vector(0, 0, 60), App.Rotation())
sketch7.addGeometry(Part.LineSegment(Vector(-22.5, 120.2, 0), Vector(-22.5, 11, 0)), False)
sketch7.addGeometry(Part.LineSegment(Vector(-22.5, 11, 0), Vector(22.7, 11, 0)), False)
sketch7.addGeometry(Part.LineSegment(Vector(22.7, 11, 0), Vector(22.7, 120.2, 0)), False)
sketch7.addGeometry(Part.LineSegment(Vector(22.7, 120.2, 0), Vector(-22.5, 120.2, 0)), False)
sketch7.addConstraint(Sketcher.Constraint("Coincident", 0, 2, 1, 1))
sketch7.addConstraint(Sketcher.Constraint("Coincident", 1, 2, 2, 1))
sketch7.addConstraint(Sketcher.Constraint("Coincident", 2, 2, 3, 1))
sketch7.addConstraint(Sketcher.Constraint("Coincident", 3, 2, 0, 1))
sketch7.addConstraint(Sketcher.Constraint("Vertical", 0))
sketch7.addConstraint(Sketcher.Constraint("Horizontal", 1))
sketch7.addConstraint(Sketcher.Constraint("Vertical", 2))
sketch7.addConstraint(Sketcher.Constraint("Horizontal", 3))
sketch7.addConstraint(Sketcher.Constraint("DistanceX", 1, 1, 1, 2, Q("45.2 mm")))
sketch7.addConstraint(Sketcher.Constraint("DistanceY", 0, 2, 0, 1, Q("109.2 mm")))
sketch7.addConstraint(Sketcher.Constraint("DistanceY", -1, 1, 0, 2, Q("11 mm")))
sketch7.addConstraint(Sketcher.Constraint("DistanceX", 0, 2, -1, 1, Q("22.5 mm")))
pad7 = body10.newObject("PartDesign::Pad", "Pad006")
pad7.Profile = sketch7
pad7.Length = 0.2
body11 = doc.addObject("PartDesign::Body", "Body010")

# Sketch on XY plane
sketch8 = body11.newObject("Sketcher::SketchObject", "Sketch007")
sketch8.AttachmentSupport = (doc.getObject("XY_Plane010"), [""])
sketch8.MapMode = "FlatFace"
sketch8.AttachmentOffset = App.Placement(Vector(0, 0, 60), App.Rotation())
sketch8.addGeometry(Part.LineSegment(Vector(-60, 22.7, 0), Vector(-60, -22.5, 0)), False)
sketch8.addGeometry(Part.LineSegment(Vector(-60, -22.5, 0), Vector(60, -22.5, 0)), False)
sketch8.addGeometry(Part.LineSegment(Vector(60, -22.5, 0), Vector(60, 22.7, 0)), False)
sketch8.addGeometry(Part.LineSegment(Vector(60, 22.7, 0), Vector(-60, 22.7, 0)), False)
sketch8.addConstraint(Sketcher.Constraint("Coincident", 0, 2, 1, 1))
sketch8.addConstraint(Sketcher.Constraint("Coincident", 1, 2, 2, 1))
sketch8.addConstraint(Sketcher.Constraint("Coincident", 2, 2, 3, 1))
sketch8.addConstraint(Sketcher.Constraint("Coincident", 3, 2, 0, 1))
sketch8.addConstraint(Sketcher.Constraint("Vertical", 0))
sketch8.addConstraint(Sketcher.Constraint("Horizontal", 1))
sketch8.addConstraint(Sketcher.Constraint("Vertical", 2))
sketch8.addConstraint(Sketcher.Constraint("Horizontal", 3))
sketch8.addConstraint(Sketcher.Constraint("DistanceX", 1, 1, 1, 2, Q("120 mm")))
sketch8.addConstraint(Sketcher.Constraint("DistanceY", 0, 2, 0, 1, Q("45.2 mm")))
sketch8.addConstraint(Sketcher.Constraint("DistanceX", 0, 2, -1, 1, Q("60 mm")))
sketch8.addConstraint(Sketcher.Constraint("DistanceY", 0, 2, -1, 1, Q("22.5 mm")))
pad8 = body11.newObject("PartDesign::Pad", "Pad007")
pad8.Profile = sketch8
pad8.Length = 0.2
body12 = doc.addObject("PartDesign::Body", "Body011")

# Sketch on XY plane
sketch9 = body12.newObject("Sketcher::SketchObject", "Sketch008")
sketch9.AttachmentSupport = (doc.getObject("XY_Plane011"), [""])
sketch9.MapMode = "FlatFace"
sketch9.AttachmentOffset = App.Placement(Vector(0, 0, 85), App.Rotation())
sketch9.addGeometry(Part.LineSegment(Vector(-60, 22.7, 0), Vector(-60, -22.5, 0)), False)
sketch9.addGeometry(Part.LineSegment(Vector(-60, -22.5, 0), Vector(60, -22.5, 0)), False)
sketch9.addGeometry(Part.LineSegment(Vector(60, -22.5, 0), Vector(60, 22.7, 0)), False)
sketch9.addGeometry(Part.LineSegment(Vector(60, 22.7, 0), Vector(-60, 22.7, 0)), False)
sketch9.addConstraint(Sketcher.Constraint("Coincident", 0, 2, 1, 1))
sketch9.addConstraint(Sketcher.Constraint("Coincident", 1, 2, 2, 1))
sketch9.addConstraint(Sketcher.Constraint("Coincident", 2, 2, 3, 1))
sketch9.addConstraint(Sketcher.Constraint("Coincident", 3, 2, 0, 1))
sketch9.addConstraint(Sketcher.Constraint("Vertical", 0))
sketch9.addConstraint(Sketcher.Constraint("Horizontal", 1))
sketch9.addConstraint(Sketcher.Constraint("Vertical", 2))
sketch9.addConstraint(Sketcher.Constraint("Horizontal", 3))
sketch9.addConstraint(Sketcher.Constraint("DistanceX", 1, 1, 1, 2, Q("120 mm")))
sketch9.addConstraint(Sketcher.Constraint("DistanceY", 0, 2, 0, 1, Q("45.2 mm")))
sketch9.addConstraint(Sketcher.Constraint("DistanceX", 0, 2, -1, 1, Q("60 mm")))
sketch9.addConstraint(Sketcher.Constraint("DistanceY", 0, 2, -1, 1, Q("22.5 mm")))
pad9 = body12.newObject("PartDesign::Pad", "Pad008")
pad9.Profile = sketch9
pad9.Length = 0.2
body13 = doc.addObject("PartDesign::Body", "Body012")

# Sketch on XY plane
sketch10 = body13.newObject("Sketcher::SketchObject", "Sketch009")
sketch10.AttachmentSupport = (doc.getObject("XY_Plane012"), [""])
sketch10.MapMode = "FlatFace"
sketch10.AttachmentOffset = App.Placement(Vector(0, 0, 15), App.Rotation())
sketch10.addGeometry(Part.LineSegment(Vector(-60, 22.7, 0), Vector(-60, -22.5, 0)), False)
sketch10.addGeometry(Part.LineSegment(Vector(-60, -22.5, 0), Vector(60, -22.5, 0)), False)
sketch10.addGeometry(Part.LineSegment(Vector(60, -22.5, 0), Vector(60, 22.7, 0)), False)
sketch10.addGeometry(Part.LineSegment(Vector(60, 22.7, 0), Vector(-60, 22.7, 0)), False)
sketch10.addConstraint(Sketcher.Constraint("Coincident", 0, 2, 1, 1))
sketch10.addConstraint(Sketcher.Constraint("Coincident", 1, 2, 2, 1))
sketch10.addConstraint(Sketcher.Constraint("Coincident", 2, 2, 3, 1))
sketch10.addConstraint(Sketcher.Constraint("Coincident", 3, 2, 0, 1))
sketch10.addConstraint(Sketcher.Constraint("Vertical", 0))
sketch10.addConstraint(Sketcher.Constraint("Horizontal", 1))
sketch10.addConstraint(Sketcher.Constraint("Vertical", 2))
sketch10.addConstraint(Sketcher.Constraint("Horizontal", 3))
sketch10.addConstraint(Sketcher.Constraint("DistanceX", 1, 1, 1, 2, Q("120 mm")))
sketch10.addConstraint(Sketcher.Constraint("DistanceY", 0, 2, 0, 1, Q("45.2 mm")))
sketch10.addConstraint(Sketcher.Constraint("DistanceX", 0, 2, -1, 1, Q("60 mm")))
sketch10.addConstraint(Sketcher.Constraint("DistanceY", 0, 2, -1, 1, Q("22.5 mm")))
pad10 = body13.newObject("PartDesign::Pad", "Pad009")
pad10.Profile = sketch10
pad10.Length = 0.2
mirroring.Visibility = False
mirroring2.Visibility = False
mirroring3.Visibility = False

doc.recompute()
